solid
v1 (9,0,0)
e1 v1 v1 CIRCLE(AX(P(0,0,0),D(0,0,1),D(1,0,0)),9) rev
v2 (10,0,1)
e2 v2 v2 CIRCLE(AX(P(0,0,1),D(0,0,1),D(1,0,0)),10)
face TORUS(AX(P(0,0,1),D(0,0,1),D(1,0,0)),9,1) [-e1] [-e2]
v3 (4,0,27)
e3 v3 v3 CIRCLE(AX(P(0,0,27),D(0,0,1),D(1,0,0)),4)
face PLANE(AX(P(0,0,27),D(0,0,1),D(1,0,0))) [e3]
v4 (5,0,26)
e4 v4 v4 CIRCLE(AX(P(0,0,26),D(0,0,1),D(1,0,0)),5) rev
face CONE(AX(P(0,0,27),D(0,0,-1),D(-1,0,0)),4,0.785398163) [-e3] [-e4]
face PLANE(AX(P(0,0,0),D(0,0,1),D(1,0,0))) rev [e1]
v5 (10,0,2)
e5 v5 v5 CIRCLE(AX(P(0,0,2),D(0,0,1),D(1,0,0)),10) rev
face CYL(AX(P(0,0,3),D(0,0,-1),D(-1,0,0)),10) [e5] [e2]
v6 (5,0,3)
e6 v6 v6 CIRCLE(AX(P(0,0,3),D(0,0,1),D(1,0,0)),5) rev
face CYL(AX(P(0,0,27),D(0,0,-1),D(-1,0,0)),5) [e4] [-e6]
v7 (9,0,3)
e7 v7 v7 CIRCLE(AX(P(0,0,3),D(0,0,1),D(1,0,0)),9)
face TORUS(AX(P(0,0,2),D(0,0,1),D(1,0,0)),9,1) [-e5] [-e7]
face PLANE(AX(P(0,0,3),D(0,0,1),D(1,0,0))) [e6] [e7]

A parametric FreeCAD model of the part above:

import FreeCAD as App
import Part
import Sketcher
from FreeCAD import Vector
Q = App.Units.Quantity


def edges_at(feature, points):
    """Names of the edges that pass closest to the given points."""
    edges = feature.Shape.Edges
    near = lambda p: min(range(len(edges)), key=lambda i: edges[i].distToShape(Part.Vertex(*p))[0])
    return sorted({f"Edge{near(p) + 1}" for p in points})

doc = App.newDocument("Part")
params = doc.addObject("Spreadsheet::Sheet", "Params")
for row, (alias, value) in enumerate([
    ("sketch1_diameter", "20 mm"),
    ("pad1_length", "3 mm"),
    ("sketch2_diameter", "10 mm"),
    ("pad2_length", "27 mm"),
    ("chamfer_size", "1 mm"),
    ("fillet_radius", "1 mm"),
], start=1):
    params.set(f"A{row}", alias)
    params.set(f"B{row}", "=" + value)
    params.setAlias(f"B{row}", alias)

body = doc.addObject("PartDesign::Body", "Body")

# Sketch on XY plane
sketch1 = doc.addObject("Sketcher::SketchObject", "Sketch")
body.addObject(sketch1)
sketch1.AttachmentSupport = (doc.XY_Plane, [""])
sketch1.MapMode = "FlatFace"
sketch1.addGeometry(Part.Circle(Vector(0, 0, 0), Vector(0, 0, 1), 10), False)
sketch1.addConstraint([
    Sketcher.Constraint("Coincident", 0, 3, -1, 1),
    Sketcher.Constraint("Diameter", 0, Q("20 mm")),
])
sketch1.setExpression("Constraints[1]", "Params.sketch1_diameter")
pad1 = doc.addObject("PartDesign::Pad", "Pad")
body.addObject(pad1)
pad1.Profile = sketch1
pad1.setExpression("Length", "Params.pad1_length")

# Sketch on XY plane
sketch2 = doc.addObject("Sketcher::SketchObject", "Sketch001")
body.addObject(sketch2)
sketch2.AttachmentSupport = (doc.XY_Plane, [""])
sketch2.MapMode = "FlatFace"
sketch2.addGeometry(Part.Circle(Vector(0, 0, 0), Vector(0, 0, 1), 5), False)
sketch2.addConstraint([
    Sketcher.Constraint("Coincident", 0, 3, -1, 1),
    Sketcher.Constraint("Diameter", 0, Q("10 mm")),
])
sketch2.setExpression("Constraints[1]", "Params.sketch2_diameter")
pad2 = doc.addObject("PartDesign::Pad", "Pad001")
body.addObject(pad2)
pad2.Profile = sketch2
pad2.setExpression("Length", "Params.pad2_length")
doc.recompute()

chamfer = doc.addObject("PartDesign::Chamfer", "Chamfer")
body.addObject(chamfer)
chamfer.Base = (pad2, edges_at(pad2, [(-5, 0, 27)]))
chamfer.setExpression("Size", "Params.chamfer_size")
doc.recompute()

fillet = doc.addObject("PartDesign::Fillet", "Fillet")
body.addObject(fillet)
fillet.Base = (chamfer, edges_at(chamfer, [(-10, 0, 0), (-10, 0, 3)]))
fillet.setExpression("Radius", "Params.fillet_radius")

doc.recompute()
